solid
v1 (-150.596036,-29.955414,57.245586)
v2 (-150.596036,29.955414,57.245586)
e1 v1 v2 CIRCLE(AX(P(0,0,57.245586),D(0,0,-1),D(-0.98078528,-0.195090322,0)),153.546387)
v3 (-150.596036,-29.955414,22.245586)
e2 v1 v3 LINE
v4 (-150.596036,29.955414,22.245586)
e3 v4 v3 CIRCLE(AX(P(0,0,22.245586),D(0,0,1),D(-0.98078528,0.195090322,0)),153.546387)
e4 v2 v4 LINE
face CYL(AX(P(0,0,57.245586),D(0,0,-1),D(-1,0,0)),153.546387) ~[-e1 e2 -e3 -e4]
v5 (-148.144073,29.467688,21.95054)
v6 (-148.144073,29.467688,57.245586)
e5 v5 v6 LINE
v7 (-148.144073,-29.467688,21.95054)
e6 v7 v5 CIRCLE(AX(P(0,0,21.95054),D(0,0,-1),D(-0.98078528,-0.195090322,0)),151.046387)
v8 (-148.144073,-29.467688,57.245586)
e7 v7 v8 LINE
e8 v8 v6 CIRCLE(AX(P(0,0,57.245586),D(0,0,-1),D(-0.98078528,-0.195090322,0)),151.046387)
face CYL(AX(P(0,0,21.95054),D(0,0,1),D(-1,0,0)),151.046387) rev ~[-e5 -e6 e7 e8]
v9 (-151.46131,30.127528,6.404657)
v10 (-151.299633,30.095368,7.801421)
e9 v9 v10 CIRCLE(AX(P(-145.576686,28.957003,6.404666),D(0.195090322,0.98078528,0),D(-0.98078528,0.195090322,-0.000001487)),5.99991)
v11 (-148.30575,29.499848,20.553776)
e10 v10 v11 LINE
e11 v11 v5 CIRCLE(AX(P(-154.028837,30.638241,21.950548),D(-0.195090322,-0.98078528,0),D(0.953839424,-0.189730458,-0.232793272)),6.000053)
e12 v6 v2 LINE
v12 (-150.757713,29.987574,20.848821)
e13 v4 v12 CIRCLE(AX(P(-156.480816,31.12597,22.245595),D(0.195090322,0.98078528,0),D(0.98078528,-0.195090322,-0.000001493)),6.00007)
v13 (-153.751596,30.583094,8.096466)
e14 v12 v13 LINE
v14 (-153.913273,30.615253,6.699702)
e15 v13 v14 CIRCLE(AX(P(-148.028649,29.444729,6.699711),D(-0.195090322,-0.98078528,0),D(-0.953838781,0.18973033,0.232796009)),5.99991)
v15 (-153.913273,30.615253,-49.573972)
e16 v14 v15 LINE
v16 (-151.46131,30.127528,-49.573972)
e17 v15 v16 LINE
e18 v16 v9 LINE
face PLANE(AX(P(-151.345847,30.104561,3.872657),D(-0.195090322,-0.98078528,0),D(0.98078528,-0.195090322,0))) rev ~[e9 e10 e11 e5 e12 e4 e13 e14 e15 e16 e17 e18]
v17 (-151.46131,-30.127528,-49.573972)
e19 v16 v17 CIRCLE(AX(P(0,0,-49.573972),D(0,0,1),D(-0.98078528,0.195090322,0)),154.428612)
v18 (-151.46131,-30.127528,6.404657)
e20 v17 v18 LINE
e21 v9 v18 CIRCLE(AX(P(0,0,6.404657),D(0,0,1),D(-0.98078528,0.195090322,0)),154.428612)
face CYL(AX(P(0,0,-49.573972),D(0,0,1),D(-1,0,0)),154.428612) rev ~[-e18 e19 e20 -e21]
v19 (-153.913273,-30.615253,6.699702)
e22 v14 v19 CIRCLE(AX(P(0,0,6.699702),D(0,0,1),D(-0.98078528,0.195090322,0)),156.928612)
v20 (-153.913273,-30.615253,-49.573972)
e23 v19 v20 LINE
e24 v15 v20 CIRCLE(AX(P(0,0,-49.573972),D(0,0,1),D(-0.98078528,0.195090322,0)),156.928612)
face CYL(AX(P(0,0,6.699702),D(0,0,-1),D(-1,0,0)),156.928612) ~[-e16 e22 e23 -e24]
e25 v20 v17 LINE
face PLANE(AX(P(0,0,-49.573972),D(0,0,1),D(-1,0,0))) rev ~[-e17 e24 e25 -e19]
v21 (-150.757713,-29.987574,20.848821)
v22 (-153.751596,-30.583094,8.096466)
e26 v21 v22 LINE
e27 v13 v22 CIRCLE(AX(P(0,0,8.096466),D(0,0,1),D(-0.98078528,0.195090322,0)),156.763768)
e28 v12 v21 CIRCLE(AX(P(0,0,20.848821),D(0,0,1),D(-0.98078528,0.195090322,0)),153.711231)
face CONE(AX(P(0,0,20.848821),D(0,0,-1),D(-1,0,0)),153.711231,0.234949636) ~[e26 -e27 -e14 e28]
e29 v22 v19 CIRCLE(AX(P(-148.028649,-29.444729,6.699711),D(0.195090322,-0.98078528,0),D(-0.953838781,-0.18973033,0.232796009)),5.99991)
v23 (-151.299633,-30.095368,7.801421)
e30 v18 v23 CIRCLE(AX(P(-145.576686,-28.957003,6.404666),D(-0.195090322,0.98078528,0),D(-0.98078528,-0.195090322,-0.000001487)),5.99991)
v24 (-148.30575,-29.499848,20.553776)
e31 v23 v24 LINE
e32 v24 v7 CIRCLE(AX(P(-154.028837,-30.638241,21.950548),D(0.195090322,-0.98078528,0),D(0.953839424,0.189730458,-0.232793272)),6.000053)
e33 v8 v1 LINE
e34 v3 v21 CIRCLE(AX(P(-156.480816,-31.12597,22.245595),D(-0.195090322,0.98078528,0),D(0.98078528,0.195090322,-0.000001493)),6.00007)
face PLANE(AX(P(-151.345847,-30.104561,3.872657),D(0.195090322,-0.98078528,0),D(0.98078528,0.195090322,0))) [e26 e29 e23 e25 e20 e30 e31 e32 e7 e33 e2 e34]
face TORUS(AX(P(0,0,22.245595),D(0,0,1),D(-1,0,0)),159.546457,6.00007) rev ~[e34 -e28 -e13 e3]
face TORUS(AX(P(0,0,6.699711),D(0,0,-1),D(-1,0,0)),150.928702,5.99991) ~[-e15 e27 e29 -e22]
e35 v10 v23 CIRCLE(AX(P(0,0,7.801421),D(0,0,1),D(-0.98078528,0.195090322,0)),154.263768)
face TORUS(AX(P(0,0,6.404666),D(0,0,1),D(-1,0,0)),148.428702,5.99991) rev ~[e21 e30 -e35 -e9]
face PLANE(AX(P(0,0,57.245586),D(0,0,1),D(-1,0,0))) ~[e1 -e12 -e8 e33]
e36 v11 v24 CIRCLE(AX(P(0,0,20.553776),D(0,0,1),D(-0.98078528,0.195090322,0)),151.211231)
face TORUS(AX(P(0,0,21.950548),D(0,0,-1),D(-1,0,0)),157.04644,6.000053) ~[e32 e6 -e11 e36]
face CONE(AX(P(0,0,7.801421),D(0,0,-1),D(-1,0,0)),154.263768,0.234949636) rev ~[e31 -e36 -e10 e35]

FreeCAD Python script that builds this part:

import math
import FreeCAD as App
import Part
import Sketcher

doc = App.newDocument("Part")
params = doc.addObject("Spreadsheet::Sheet", "Params")
for row, (alias, value) in enumerate([
    ("sketch1_height", "35 mm"),
    ("sketch1_width", "2.5 mm"),
    ("sketch1_width2", "2.5 mm"),
    ("revolution_angle", "11.25 deg"),
    ("sketch2_height", "35 mm"),
    ("sketch2_width", "2.5 mm"),
    ("sketch2_width2", "2.5 mm"),
    ("revolution2_angle", "11.25 deg"),
], start=1):
    params.set(f"A{row}", alias)
    params.set(f"B{row}", "=" + value)
    params.setAlias(f"B{row}", alias)

body = doc.addObject("PartDesign::Body", "Body")

sketch1 = doc.addObject("Sketcher::SketchObject", "Sketch")
body.addObject(sketch1)
sketch1.AttachmentSupport = (doc.XZ_Plane, [""])
sketch1.MapMode = "FlatFace"
sketch1.addGeometry(Part.LineSegment(App.Vector(-153.546387, 57.245586, 0), App.Vector(-153.546387, 22.245586, 0)), False)
sketch1.addGeometry(Part.ArcOfCircle(Part.Circle(App.Vector(-159.546457, 22.245595, 0), App.Vector(0, 0, 1), 6.00007), math.radians(-13.46156), math.radians(-0.000086)), False)
sketch1.addGeometry(Part.LineSegment(App.Vector(-153.711231, 20.848821, 0), App.Vector(-156.763768, 8.096466, 0)), False)
sketch1.addGeometry(Part.ArcOfCircle(Part.Circle(App.Vector(-150.928702, 6.699711, 0), App.Vector(0, 0, 1), 5.99991), math.radians(166.538259), math.radians(180.000085)), False)
sketch1.addGeometry(Part.LineSegment(App.Vector(-156.928612, 6.699702, 0), App.Vector(-156.928612, -49.573972, 0)), False)
sketch1.addGeometry(Part.LineSegment(App.Vector(-156.928612, -49.573972, 0), App.Vector(-154.428612, -49.573972, 0)), False)
sketch1.addGeometry(Part.LineSegment(App.Vector(-154.428612, -49.573972, 0), App.Vector(-154.428612, 6.404657, 0)), False)
sketch1.addGeometry(Part.ArcOfCircle(Part.Circle(App.Vector(-148.428702, 6.404666, 0), App.Vector(0, 0, 1), 5.99991), math.radians(166.538259), math.radians(180.000085)), False)
sketch1.addGeometry(Part.LineSegment(App.Vector(-154.263768, 7.801421, 0), App.Vector(-151.211231, 20.553776, 0)), False)
sketch1.addGeometry(Part.ArcOfCircle(Part.Circle(App.Vector(-157.04644, 21.950548, 0), App.Vector(0, 0, 1), 6.000053), math.radians(-13.461579), math.radians(-0.000076)), False)
sketch1.addGeometry(Part.LineSegment(App.Vector(-151.046387, 21.95054, 0), App.Vector(-151.046387, 57.245586, 0)), False)
sketch1.addGeometry(Part.LineSegment(App.Vector(-151.046387, 57.245586, 0), App.Vector(-153.546387, 57.245586, 0)), False)
sketch1.addConstraint(Sketcher.Constraint("Coincident", 0, 2, 1, 2))
sketch1.addConstraint(Sketcher.Constraint("Coincident", 1, 1, 2, 1))
sketch1.addConstraint(Sketcher.Constraint("Coincident", 2, 2, 3, 1))
sketch1.addConstraint(Sketcher.Constraint("Coincident", 3, 2, 4, 1))
sketch1.addConstraint(Sketcher.Constraint("Coincident", 4, 2, 5, 1))
sketch1.addConstraint(Sketcher.Constraint("Coincident", 5, 2, 6, 1))
sketch1.addConstraint(Sketcher.Constraint("Coincident", 6, 2, 7, 2))
sketch1.addConstraint(Sketcher.Constraint("Coincident", 7, 1, 8, 1))
sketch1.addConstraint(Sketcher.Constraint("Coincident", 8, 2, 9, 1))
sketch1.addConstraint(Sketcher.Constraint("Coincident", 9, 2, 10, 1))
sketch1.addConstraint(Sketcher.Constraint("Coincident", 10, 2, 11, 1))
sketch1.addConstraint(Sketcher.Constraint("Coincident", 11, 2, 0, 1))
sketch1.addConstraint(Sketcher.Constraint("Vertical", 0))
sketch1.addConstraint(Sketcher.Constraint("Vertical", 4))
sketch1.addConstraint(Sketcher.Constraint("Horizontal", 5))
sketch1.addConstraint(Sketcher.Constraint("Vertical", 6))
sketch1.addConstraint(Sketcher.Constraint("Vertical", 10))
sketch1.addConstraint(Sketcher.Constraint("Horizontal", 11))
sketch1.addConstraint(Sketcher.Constraint("DistanceY", 0, 2, 0, 1, 35.0))
sketch1.addConstraint(Sketcher.Constraint("DistanceX", 5, 1, 5, 2, 2.5))
sketch1.addConstraint(Sketcher.Constraint("DistanceX", 11, 2, 11, 1, 2.5))
sketch1.addConstraint(Sketcher.Constraint("DistanceX", 3, 3, 7, 3, 2.5))
sketch1.addConstraint(Sketcher.Constraint("DistanceX", 2, 2, 7, 1, 2.5))
sketch1.addConstraint(Sketcher.Constraint("DistanceX", 1, 1, 8, 2, 2.5))
sketch1.addConstraint(Sketcher.Constraint("Radius", 1, 6.00007))
sketch1.addConstraint(Sketcher.Constraint("Radius", 3, 5.99991))
sketch1.addConstraint(Sketcher.Constraint("Radius", 9, 6.000053))
sketch1.addConstraint(Sketcher.Constraint("DistanceY", 6, 1, 6, 2, 55.978629))
sketch1.addConstraint(Sketcher.Constraint("DistanceY", 7, 3, 2, 2, 1.6918))
sketch1.addConstraint(Sketcher.Constraint("Distance", 2, 13.11261))
sketch1.addConstraint(Sketcher.Constraint("Distance", 8, 13.11261))
sketch1.addConstraint(Sketcher.Constraint("DistanceY", 4, 2, 4, 1, 56.273674))
sketch1.addConstraint(Sketcher.Constraint("DistanceY", 10, 1, 10, 2, 35.295046))
sketch1.addConstraint(Sketcher.Constraint("DistanceY", -1, 1, 3, 3, 6.699711))
sketch1.addConstraint(Sketcher.Constraint("DistanceX", 9, 3, -1, 1, 157.04644))
sketch1.addConstraint(Sketcher.Constraint("DistanceX", 1, 1, -1, 1, 153.711231))
sketch1.addConstraint(Sketcher.Constraint("DistanceY", -1, 1, 1, 1, 20.848821))
sketch1.addConstraint(Sketcher.Constraint("DistanceX", 2, 2, -1, 1, 156.763768))
sketch1.addConstraint(Sketcher.Constraint("DistanceY", 4, 2, -1, 1, 49.573972))
sketch1.addConstraint(Sketcher.Constraint("DistanceY", -1, 1, 9, 2, 21.95054))
sketch1.setExpression("Constraints[18]", "Params.sketch1_height")
sketch1.setExpression("Constraints[19]", "Params.sketch1_width")
sketch1.setExpression("Constraints[20]", "Params.sketch1_width2")
revolution = doc.addObject("PartDesign::Revolution", "Revolution")
body.addObject(revolution)
revolution.Profile = sketch1
revolution.ReferenceAxis = (sketch1, ["V_Axis"])
revolution.setExpression("Angle", "Params.revolution_angle")
revolution.Reversed = True

sketch2 = doc.addObject("Sketcher::SketchObject", "Sketch001")
body.addObject(sketch2)
sketch2.AttachmentSupport = (doc.XZ_Plane, [""])
sketch2.MapMode = "FlatFace"
sketch2.addGeometry(Part.LineSegment(App.Vector(-153.546387, 57.245586, 0), App.Vector(-153.546387, 22.245586, 0)), False)
sketch2.addGeometry(Part.ArcOfCircle(Part.Circle(App.Vector(-159.546457, 22.245595, 0), App.Vector(0, 0, 1), 6.00007), math.radians(-13.46156), math.radians(-0.000086)), False)
sketch2.addGeometry(Part.LineSegment(App.Vector(-153.711231, 20.848821, 0), App.Vector(-156.763768, 8.096466, 0)), False)
sketch2.addGeometry(Part.ArcOfCircle(Part.Circle(App.Vector(-150.928702, 6.699711, 0), App.Vector(0, 0, 1), 5.99991), math.radians(166.538259), math.radians(180.000085)), False)
sketch2.addGeometry(Part.LineSegment(App.Vector(-156.928612, 6.699702, 0), App.Vector(-156.928612, -49.573972, 0)), False)
sketch2.addGeometry(Part.LineSegment(App.Vector(-156.928612, -49.573972, 0), App.Vector(-154.428612, -49.573972, 0)), False)
sketch2.addGeometry(Part.LineSegment(App.Vector(-154.428612, -49.573972, 0), App.Vector(-154.428612, 6.404657, 0)), False)
sketch2.addGeometry(Part.ArcOfCircle(Part.Circle(App.Vector(-148.428702, 6.404666, 0), App.Vector(0, 0, 1), 5.99991), math.radians(166.538259), math.radians(180.000085)), False)
sketch2.addGeometry(Part.LineSegment(App.Vector(-154.263768, 7.801421, 0), App.Vector(-151.211231, 20.553776, 0)), False)
sketch2.addGeometry(Part.ArcOfCircle(Part.Circle(App.Vector(-157.04644, 21.950548, 0), App.Vector(0, 0, 1), 6.000053), math.radians(-13.461579), math.radians(-0.000076)), False)
sketch2.addGeometry(Part.LineSegment(App.Vector(-151.046387, 21.95054, 0), App.Vector(-151.046387, 57.245586, 0)), False)
sketch2.addGeometry(Part.LineSegment(App.Vector(-151.046387, 57.245586, 0), App.Vector(-153.546387, 57.245586, 0)), False)
sketch2.addConstraint(Sketcher.Constraint("Coincident", 0, 2, 1, 2))
sketch2.addConstraint(Sketcher.Constraint("Coincident", 1, 1, 2, 1))
sketch2.addConstraint(Sketcher.Constraint("Coincident", 2, 2, 3, 1))
sketch2.addConstraint(Sketcher.Constraint("Coincident", 3, 2, 4, 1))
sketch2.addConstraint(Sketcher.Constraint("Coincident", 4, 2, 5, 1))
sketch2.addConstraint(Sketcher.Constraint("Coincident", 5, 2, 6, 1))
sketch2.addConstraint(Sketcher.Constraint("Coincident", 6, 2, 7, 2))
sketch2.addConstraint(Sketcher.Constraint("Coincident", 7, 1, 8, 1))
sketch2.addConstraint(Sketcher.Constraint("Coincident", 8, 2, 9, 1))
sketch2.addConstraint(Sketcher.Constraint("Coincident", 9, 2, 10, 1))
sketch2.addConstraint(Sketcher.Constraint("Coincident", 10, 2, 11, 1))
sketch2.addConstraint(Sketcher.Constraint("Coincident", 11, 2, 0, 1))
sketch2.addConstraint(Sketcher.Constraint("Vertical", 0))
sketch2.addConstraint(Sketcher.Constraint("Vertical", 4))
sketch2.addConstraint(Sketcher.Constraint("Horizontal", 5))
sketch2.addConstraint(Sketcher.Constraint("Vertical", 6))
sketch2.addConstraint(Sketcher.Constraint("Vertical", 10))
sketch2.addConstraint(Sketcher.Constraint("Horizontal", 11))
sketch2.addConstraint(Sketcher.Constraint("DistanceY", 0, 2, 0, 1, 35.0))
sketch2.addConstraint(Sketcher.Constraint("DistanceX", 5, 1, 5, 2, 2.5))
sketch2.addConstraint(Sketcher.Constraint("DistanceX", 11, 2, 11, 1, 2.5))
sketch2.addConstraint(Sketcher.Constraint("DistanceX", 3, 3, 7, 3, 2.5))
sketch2.addConstraint(Sketcher.Constraint("DistanceX", 2, 2, 7, 1, 2.5))
sketch2.addConstraint(Sketcher.Constraint("DistanceX", 1, 1, 8, 2, 2.5))
sketch2.addConstraint(Sketcher.Constraint("Radius", 1, 6.00007))
sketch2.addConstraint(Sketcher.Constraint("Radius", 3, 5.99991))
sketch2.addConstraint(Sketcher.Constraint("Radius", 9, 6.000053))
sketch2.addConstraint(Sketcher.Constraint("DistanceY", 6, 1, 6, 2, 55.978629))
sketch2.addConstraint(Sketcher.Constraint("DistanceY", 7, 3, 2, 2, 1.6918))
sketch2.addConstraint(Sketcher.Constraint("Distance", 2, 13.11261))
sketch2.addConstraint(Sketcher.Constraint("Distance", 8, 13.11261))
sketch2.addConstraint(Sketcher.Constraint("DistanceY", 4, 2, 4, 1, 56.273674))
sketch2.addConstraint(Sketcher.Constraint("DistanceY", 10, 1, 10, 2, 35.295046))
sketch2.addConstraint(Sketcher.Constraint("DistanceY", -1, 1, 3, 3, 6.699711))
sketch2.addConstraint(Sketcher.Constraint("DistanceX", 9, 3, -1, 1, 157.04644))
sketch2.addConstraint(Sketcher.Constraint("DistanceX", 1, 1, -1, 1, 153.711231))
sketch2.addConstraint(Sketcher.Constraint("DistanceY", -1, 1, 1, 1, 20.848821))
sketch2.addConstraint(Sketcher.Constraint("DistanceX", 2, 2, -1, 1, 156.763768))
sketch2.addConstraint(Sketcher.Constraint("DistanceY", 4, 2, -1, 1, 49.573972))
sketch2.addConstraint(Sketcher.Constraint("DistanceY", -1, 1, 9, 2, 21.95054))
sketch2.setExpression("Constraints[18]", "Params.sketch2_height")
sketch2.setExpression("Constraints[19]", "Params.sketch2_width")
sketch2.setExpression("Constraints[20]", "Params.sketch2_width2")
revolution2 = doc.addObject("PartDesign::Revolution", "Revolution001")
body.addObject(revolution2)
revolution2.Profile = sketch2
revolution2.ReferenceAxis = (sketch2, ["V_Axis"])
revolution2.setExpression("Angle", "Params.revolution2_angle")

doc.recompute()
